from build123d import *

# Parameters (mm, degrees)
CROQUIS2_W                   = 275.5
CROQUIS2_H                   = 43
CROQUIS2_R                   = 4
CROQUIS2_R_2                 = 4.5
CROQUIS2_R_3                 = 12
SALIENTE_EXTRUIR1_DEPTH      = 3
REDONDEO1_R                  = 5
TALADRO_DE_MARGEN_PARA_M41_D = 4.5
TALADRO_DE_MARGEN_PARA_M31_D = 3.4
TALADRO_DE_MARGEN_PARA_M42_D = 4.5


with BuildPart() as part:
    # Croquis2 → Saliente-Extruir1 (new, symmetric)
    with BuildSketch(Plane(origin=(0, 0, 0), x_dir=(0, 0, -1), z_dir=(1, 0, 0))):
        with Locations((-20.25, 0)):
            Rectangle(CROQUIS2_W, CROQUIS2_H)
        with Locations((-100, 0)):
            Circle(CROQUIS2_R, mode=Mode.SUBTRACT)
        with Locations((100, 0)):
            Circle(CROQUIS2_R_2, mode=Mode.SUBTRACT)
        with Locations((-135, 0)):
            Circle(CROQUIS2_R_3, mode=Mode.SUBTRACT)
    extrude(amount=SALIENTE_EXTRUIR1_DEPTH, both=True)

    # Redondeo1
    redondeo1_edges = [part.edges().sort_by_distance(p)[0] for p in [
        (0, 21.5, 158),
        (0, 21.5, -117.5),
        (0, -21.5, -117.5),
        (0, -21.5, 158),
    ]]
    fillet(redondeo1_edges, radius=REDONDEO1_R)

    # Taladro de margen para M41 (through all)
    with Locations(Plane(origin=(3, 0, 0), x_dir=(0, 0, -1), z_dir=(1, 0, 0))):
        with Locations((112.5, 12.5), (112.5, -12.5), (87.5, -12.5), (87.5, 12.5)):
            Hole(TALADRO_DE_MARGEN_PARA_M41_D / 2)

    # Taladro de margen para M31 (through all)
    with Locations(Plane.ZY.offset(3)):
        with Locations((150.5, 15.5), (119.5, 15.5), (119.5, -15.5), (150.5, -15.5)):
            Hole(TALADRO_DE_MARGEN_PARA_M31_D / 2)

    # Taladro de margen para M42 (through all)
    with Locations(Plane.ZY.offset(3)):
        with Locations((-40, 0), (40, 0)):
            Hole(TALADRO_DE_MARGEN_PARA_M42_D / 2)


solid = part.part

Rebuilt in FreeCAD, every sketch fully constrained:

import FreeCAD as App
import Part
import Sketcher

V = App.Vector
Q = App.Units.Quantity


def edges_at(feature, points):
    """Names of the edges that pass closest to the given points."""
    edges = feature.Shape.Edges
    near = lambda p: min(range(len(edges)), key=lambda i: edges[i].distToShape(Part.Vertex(*p))[0])
    return sorted({f"Edge{near(p) + 1}" for p in points})

doc = App.newDocument("Part")
body = doc.addObject("PartDesign::Body", "Body")

# Sketch on YZ plane
sketch1 = body.newObject("Sketcher::SketchObject", "Sketch")
sketch1.AttachmentSupport = (doc.getObject("YZ_Plane"), [""])
sketch1.MapMode = "FlatFace"
sketch1.addGeometry(Part.LineSegment(V(21.5, 158, 0), V(-21.5, 158, 0)), False)
sketch1.addGeometry(Part.LineSegment(V(-21.5, 158, 0), V(-21.5, -117.5, 0)), False)
sketch1.addGeometry(Part.LineSegment(V(-21.5, -117.5, 0), V(21.5, -117.5, 0)), False)
sketch1.addGeometry(Part.LineSegment(V(21.5, -117.5, 0), V(21.5, 158, 0)), False)
sketch1.addGeometry(Part.Circle(V(0, 135, 0), V(0, 0, 1), 12), False)
sketch1.addGeometry(Part.Circle(V(0, 100, 0), V(0, 0, 1), 4), False)
sketch1.addGeometry(Part.Circle(V(0, -100, 0), V(0, 0, 1), 4.5), False)
sketch1.addConstraint(Sketcher.Constraint("Coincident", 0, 2, 1, 1))
sketch1.addConstraint(Sketcher.Constraint("Coincident", 1, 2, 2, 1))
sketch1.addConstraint(Sketcher.Constraint("Coincident", 2, 2, 3, 1))
sketch1.addConstraint(Sketcher.Constraint("Coincident", 3, 2, 0, 1))
sketch1.addConstraint(Sketcher.Constraint("Horizontal", 0))
sketch1.addConstraint(Sketcher.Constraint("Vertical", 1))
sketch1.addConstraint(Sketcher.Constraint("Horizontal", 2))
sketch1.addConstraint(Sketcher.Constraint("Vertical", 3))
sketch1.addConstraint(Sketcher.Constraint("Symmetric", 5, 3, 6, 3, -1, 1))
sketch1.addConstraint(Sketcher.Constraint("PointOnObject", 4, 3, -2))
sketch1.addConstraint(Sketcher.Constraint("PointOnObject", 5, 3, -2))
sketch1.addConstraint(Sketcher.Constraint("Diameter", 4, Q("24 mm")))
sketch1.addConstraint(Sketcher.Constraint("Diameter", 5, Q("8 mm")))
sketch1.addConstraint(Sketcher.Constraint("Diameter", 6, Q("9 mm")))
sketch1.addConstraint(Sketcher.Constraint("DistanceX", 0, 2, 0, 1, Q("43 mm")))
sketch1.addConstraint(Sketcher.Constraint("DistanceY", 1, 2, 1, 1, Q("275.5 mm")))
sketch1.addConstraint(Sketcher.Constraint("DistanceY", -1, 1, 4, 3, Q("135 mm")))
sketch1.addConstraint(Sketcher.Constraint("DistanceY", -1, 1, 5, 3, Q("100 mm")))
sketch1.addConstraint(Sketcher.Constraint("DistanceY", -1, 1, 0, 2, Q("158 mm")))
sketch1.addConstraint(Sketcher.Constraint("DistanceX", 0, 2, -1, 1, Q("21.5 mm")))
pad1 = body.newObject("PartDesign::Pad", "Pad")
pad1.Profile = sketch1
pad1.Length = 6
pad1.Midplane = True
doc.recompute()

fillet = body.newObject("PartDesign::Fillet", "Fillet")
fillet.Base = (pad1, edges_at(pad1, [
    (0, 21.5, 158),
    (0, 21.5, -117.5),
    (0, -21.5, -117.5),
    (0, -21.5, 158),
]))
fillet.Radius = 5

# Sketch on YZ plane
sketch2 = body.newObject("Sketcher::SketchObject", "Sketch001")
sketch2.AttachmentSupport = (doc.getObject("YZ_Plane"), [""])
sketch2.MapMode = "FlatFace"
sketch2.AttachmentOffset = App.Placement(V(0, 0, 3), App.Rotation())
sketch2.addGeometry(Part.Circle(V(12.5, -112.5, 0), V(0, 0, 1), 2.25), False)
sketch2.addGeometry(Part.Circle(V(-12.5, -112.5, 0), V(0, 0, 1), 2.25), False)
sketch2.addGeometry(Part.Circle(V(-12.5, -87.5, 0), V(0, 0, 1), 2.25), False)
sketch2.addGeometry(Part.Circle(V(12.5, -87.5, 0), V(0, 0, 1), 2.25), False)
sketch2.addConstraint(Sketcher.Constraint("Equal", 0, 1))
sketch2.addConstraint(Sketcher.Constraint("Equal", 1, 2))
sketch2.addConstraint(Sketcher.Constraint("Equal", 2, 3))
sketch2.addConstraint(Sketcher.Constraint("Symmetric", 0, 3, 1, 3, -2))
sketch2.addConstraint(Sketcher.Constraint("Symmetric", 2, 3, 3, 3, -2))
sketch2.addConstraint(Sketcher.Constraint("Vertical", 1, 3, 2, 3))
sketch2.addConstraint(Sketcher.Constraint("Diameter", 0, Q("4.5 mm")))
sketch2.addConstraint(Sketcher.Constraint("DistanceX", 1, 3, 0, 3, Q("25 mm")))
sketch2.addConstraint(Sketcher.Constraint("DistanceY", 1, 3, 2, 3, Q("25 mm")))
sketch2.addConstraint(Sketcher.Constraint("DistanceY", 0, 3, -1, 1, Q("112.5 mm")))
doc.recompute()
hole = body.newObject("PartDesign::Hole", "Hole")
hole.Profile = sketch2
hole.ThreadType = "None"
hole.Diameter = 4.5
hole.DepthType = "ThroughAll"

# Sketch on YZ plane
sketch3 = body.newObject("Sketcher::SketchObject", "Sketch002")
sketch3.AttachmentSupport = (doc.getObject("YZ_Plane"), [""])
sketch3.MapMode = "FlatFace"
sketch3.AttachmentOffset = App.Placement(V(0, 0, -3), App.Rotation())
sketch3.addGeometry(Part.Circle(V(15.5, 150.5, 0), V(0, 0, 1), 1.7), False)
sketch3.addGeometry(Part.Circle(V(15.5, 119.5, 0), V(0, 0, 1), 1.7), False)
sketch3.addGeometry(Part.Circle(V(-15.5, 119.5, 0), V(0, 0, 1), 1.7), False)
sketch3.addGeometry(Part.Circle(V(-15.5, 150.5, 0), V(0, 0, 1), 1.7), False)
sketch3.addConstraint(Sketcher.Constraint("Equal", 0, 1))
sketch3.addConstraint(Sketcher.Constraint("Equal", 1, 2))
sketch3.addConstraint(Sketcher.Constraint("Equal", 2, 3))
sketch3.addConstraint(Sketcher.Constraint("Symmetric", 1, 3, 2, 3, -2))
sketch3.addConstraint(Sketcher.Constraint("Symmetric", 0, 3, 3, 3, -2))
sketch3.addConstraint(Sketcher.Constraint("Vertical", 0, 3, 1, 3))
sketch3.addConstraint(Sketcher.Constraint("Diameter", 0, Q("3.4 mm")))
sketch3.addConstraint(Sketcher.Constraint("DistanceY", 1, 3, 0, 3, Q("31 mm")))
sketch3.addConstraint(Sketcher.Constraint("DistanceX", 2, 3, 1, 3, Q("31 mm")))
sketch3.addConstraint(Sketcher.Constraint("DistanceY", -1, 1, 0, 3, Q("150.5 mm")))
doc.recompute()
hole2 = body.newObject("PartDesign::Hole", "Hole001")
hole2.Profile = sketch3
hole2.ThreadType = "None"
hole2.Diameter = 3.4
hole2.DepthType = "ThroughAll"
hole2.Reversed = True

# Sketch on YZ plane
sketch4 = body.newObject("Sketcher::SketchObject", "Sketch003")
sketch4.AttachmentSupport = (doc.getObject("YZ_Plane"), [""])
sketch4.MapMode = "FlatFace"
sketch4.AttachmentOffset = App.Placement(V(0, 0, -3), App.Rotation())
sketch4.addGeometry(Part.Circle(V(0, -40, 0), V(0, 0, 1), 2.25), False)
sketch4.addGeometry(Part.Circle(V(0, 40, 0), V(0, 0, 1), 2.25), False)
sketch4.addConstraint(Sketcher.Constraint("Equal", 0, 1))
sketch4.addConstraint(Sketcher.Constraint("Symmetric", 0, 3, 1, 3, -1, 1))
sketch4.addConstraint(Sketcher.Constraint("PointOnObject", 0, 3, -2))
sketch4.addConstraint(Sketcher.Constraint("Diameter", 0, Q("4.5 mm")))
sketch4.addConstraint(Sketcher.Constraint("DistanceY", 0, 3, -1, 1, Q("40 mm")))
doc.recompute()
hole3 = body.newObject("PartDesign::Hole", "Hole002")
hole3.Profile = sketch4
hole3.ThreadType = "None"
hole3.Diameter = 4.5
hole3.DepthType = "ThroughAll"
hole3.Reversed = True

doc.recompute()
